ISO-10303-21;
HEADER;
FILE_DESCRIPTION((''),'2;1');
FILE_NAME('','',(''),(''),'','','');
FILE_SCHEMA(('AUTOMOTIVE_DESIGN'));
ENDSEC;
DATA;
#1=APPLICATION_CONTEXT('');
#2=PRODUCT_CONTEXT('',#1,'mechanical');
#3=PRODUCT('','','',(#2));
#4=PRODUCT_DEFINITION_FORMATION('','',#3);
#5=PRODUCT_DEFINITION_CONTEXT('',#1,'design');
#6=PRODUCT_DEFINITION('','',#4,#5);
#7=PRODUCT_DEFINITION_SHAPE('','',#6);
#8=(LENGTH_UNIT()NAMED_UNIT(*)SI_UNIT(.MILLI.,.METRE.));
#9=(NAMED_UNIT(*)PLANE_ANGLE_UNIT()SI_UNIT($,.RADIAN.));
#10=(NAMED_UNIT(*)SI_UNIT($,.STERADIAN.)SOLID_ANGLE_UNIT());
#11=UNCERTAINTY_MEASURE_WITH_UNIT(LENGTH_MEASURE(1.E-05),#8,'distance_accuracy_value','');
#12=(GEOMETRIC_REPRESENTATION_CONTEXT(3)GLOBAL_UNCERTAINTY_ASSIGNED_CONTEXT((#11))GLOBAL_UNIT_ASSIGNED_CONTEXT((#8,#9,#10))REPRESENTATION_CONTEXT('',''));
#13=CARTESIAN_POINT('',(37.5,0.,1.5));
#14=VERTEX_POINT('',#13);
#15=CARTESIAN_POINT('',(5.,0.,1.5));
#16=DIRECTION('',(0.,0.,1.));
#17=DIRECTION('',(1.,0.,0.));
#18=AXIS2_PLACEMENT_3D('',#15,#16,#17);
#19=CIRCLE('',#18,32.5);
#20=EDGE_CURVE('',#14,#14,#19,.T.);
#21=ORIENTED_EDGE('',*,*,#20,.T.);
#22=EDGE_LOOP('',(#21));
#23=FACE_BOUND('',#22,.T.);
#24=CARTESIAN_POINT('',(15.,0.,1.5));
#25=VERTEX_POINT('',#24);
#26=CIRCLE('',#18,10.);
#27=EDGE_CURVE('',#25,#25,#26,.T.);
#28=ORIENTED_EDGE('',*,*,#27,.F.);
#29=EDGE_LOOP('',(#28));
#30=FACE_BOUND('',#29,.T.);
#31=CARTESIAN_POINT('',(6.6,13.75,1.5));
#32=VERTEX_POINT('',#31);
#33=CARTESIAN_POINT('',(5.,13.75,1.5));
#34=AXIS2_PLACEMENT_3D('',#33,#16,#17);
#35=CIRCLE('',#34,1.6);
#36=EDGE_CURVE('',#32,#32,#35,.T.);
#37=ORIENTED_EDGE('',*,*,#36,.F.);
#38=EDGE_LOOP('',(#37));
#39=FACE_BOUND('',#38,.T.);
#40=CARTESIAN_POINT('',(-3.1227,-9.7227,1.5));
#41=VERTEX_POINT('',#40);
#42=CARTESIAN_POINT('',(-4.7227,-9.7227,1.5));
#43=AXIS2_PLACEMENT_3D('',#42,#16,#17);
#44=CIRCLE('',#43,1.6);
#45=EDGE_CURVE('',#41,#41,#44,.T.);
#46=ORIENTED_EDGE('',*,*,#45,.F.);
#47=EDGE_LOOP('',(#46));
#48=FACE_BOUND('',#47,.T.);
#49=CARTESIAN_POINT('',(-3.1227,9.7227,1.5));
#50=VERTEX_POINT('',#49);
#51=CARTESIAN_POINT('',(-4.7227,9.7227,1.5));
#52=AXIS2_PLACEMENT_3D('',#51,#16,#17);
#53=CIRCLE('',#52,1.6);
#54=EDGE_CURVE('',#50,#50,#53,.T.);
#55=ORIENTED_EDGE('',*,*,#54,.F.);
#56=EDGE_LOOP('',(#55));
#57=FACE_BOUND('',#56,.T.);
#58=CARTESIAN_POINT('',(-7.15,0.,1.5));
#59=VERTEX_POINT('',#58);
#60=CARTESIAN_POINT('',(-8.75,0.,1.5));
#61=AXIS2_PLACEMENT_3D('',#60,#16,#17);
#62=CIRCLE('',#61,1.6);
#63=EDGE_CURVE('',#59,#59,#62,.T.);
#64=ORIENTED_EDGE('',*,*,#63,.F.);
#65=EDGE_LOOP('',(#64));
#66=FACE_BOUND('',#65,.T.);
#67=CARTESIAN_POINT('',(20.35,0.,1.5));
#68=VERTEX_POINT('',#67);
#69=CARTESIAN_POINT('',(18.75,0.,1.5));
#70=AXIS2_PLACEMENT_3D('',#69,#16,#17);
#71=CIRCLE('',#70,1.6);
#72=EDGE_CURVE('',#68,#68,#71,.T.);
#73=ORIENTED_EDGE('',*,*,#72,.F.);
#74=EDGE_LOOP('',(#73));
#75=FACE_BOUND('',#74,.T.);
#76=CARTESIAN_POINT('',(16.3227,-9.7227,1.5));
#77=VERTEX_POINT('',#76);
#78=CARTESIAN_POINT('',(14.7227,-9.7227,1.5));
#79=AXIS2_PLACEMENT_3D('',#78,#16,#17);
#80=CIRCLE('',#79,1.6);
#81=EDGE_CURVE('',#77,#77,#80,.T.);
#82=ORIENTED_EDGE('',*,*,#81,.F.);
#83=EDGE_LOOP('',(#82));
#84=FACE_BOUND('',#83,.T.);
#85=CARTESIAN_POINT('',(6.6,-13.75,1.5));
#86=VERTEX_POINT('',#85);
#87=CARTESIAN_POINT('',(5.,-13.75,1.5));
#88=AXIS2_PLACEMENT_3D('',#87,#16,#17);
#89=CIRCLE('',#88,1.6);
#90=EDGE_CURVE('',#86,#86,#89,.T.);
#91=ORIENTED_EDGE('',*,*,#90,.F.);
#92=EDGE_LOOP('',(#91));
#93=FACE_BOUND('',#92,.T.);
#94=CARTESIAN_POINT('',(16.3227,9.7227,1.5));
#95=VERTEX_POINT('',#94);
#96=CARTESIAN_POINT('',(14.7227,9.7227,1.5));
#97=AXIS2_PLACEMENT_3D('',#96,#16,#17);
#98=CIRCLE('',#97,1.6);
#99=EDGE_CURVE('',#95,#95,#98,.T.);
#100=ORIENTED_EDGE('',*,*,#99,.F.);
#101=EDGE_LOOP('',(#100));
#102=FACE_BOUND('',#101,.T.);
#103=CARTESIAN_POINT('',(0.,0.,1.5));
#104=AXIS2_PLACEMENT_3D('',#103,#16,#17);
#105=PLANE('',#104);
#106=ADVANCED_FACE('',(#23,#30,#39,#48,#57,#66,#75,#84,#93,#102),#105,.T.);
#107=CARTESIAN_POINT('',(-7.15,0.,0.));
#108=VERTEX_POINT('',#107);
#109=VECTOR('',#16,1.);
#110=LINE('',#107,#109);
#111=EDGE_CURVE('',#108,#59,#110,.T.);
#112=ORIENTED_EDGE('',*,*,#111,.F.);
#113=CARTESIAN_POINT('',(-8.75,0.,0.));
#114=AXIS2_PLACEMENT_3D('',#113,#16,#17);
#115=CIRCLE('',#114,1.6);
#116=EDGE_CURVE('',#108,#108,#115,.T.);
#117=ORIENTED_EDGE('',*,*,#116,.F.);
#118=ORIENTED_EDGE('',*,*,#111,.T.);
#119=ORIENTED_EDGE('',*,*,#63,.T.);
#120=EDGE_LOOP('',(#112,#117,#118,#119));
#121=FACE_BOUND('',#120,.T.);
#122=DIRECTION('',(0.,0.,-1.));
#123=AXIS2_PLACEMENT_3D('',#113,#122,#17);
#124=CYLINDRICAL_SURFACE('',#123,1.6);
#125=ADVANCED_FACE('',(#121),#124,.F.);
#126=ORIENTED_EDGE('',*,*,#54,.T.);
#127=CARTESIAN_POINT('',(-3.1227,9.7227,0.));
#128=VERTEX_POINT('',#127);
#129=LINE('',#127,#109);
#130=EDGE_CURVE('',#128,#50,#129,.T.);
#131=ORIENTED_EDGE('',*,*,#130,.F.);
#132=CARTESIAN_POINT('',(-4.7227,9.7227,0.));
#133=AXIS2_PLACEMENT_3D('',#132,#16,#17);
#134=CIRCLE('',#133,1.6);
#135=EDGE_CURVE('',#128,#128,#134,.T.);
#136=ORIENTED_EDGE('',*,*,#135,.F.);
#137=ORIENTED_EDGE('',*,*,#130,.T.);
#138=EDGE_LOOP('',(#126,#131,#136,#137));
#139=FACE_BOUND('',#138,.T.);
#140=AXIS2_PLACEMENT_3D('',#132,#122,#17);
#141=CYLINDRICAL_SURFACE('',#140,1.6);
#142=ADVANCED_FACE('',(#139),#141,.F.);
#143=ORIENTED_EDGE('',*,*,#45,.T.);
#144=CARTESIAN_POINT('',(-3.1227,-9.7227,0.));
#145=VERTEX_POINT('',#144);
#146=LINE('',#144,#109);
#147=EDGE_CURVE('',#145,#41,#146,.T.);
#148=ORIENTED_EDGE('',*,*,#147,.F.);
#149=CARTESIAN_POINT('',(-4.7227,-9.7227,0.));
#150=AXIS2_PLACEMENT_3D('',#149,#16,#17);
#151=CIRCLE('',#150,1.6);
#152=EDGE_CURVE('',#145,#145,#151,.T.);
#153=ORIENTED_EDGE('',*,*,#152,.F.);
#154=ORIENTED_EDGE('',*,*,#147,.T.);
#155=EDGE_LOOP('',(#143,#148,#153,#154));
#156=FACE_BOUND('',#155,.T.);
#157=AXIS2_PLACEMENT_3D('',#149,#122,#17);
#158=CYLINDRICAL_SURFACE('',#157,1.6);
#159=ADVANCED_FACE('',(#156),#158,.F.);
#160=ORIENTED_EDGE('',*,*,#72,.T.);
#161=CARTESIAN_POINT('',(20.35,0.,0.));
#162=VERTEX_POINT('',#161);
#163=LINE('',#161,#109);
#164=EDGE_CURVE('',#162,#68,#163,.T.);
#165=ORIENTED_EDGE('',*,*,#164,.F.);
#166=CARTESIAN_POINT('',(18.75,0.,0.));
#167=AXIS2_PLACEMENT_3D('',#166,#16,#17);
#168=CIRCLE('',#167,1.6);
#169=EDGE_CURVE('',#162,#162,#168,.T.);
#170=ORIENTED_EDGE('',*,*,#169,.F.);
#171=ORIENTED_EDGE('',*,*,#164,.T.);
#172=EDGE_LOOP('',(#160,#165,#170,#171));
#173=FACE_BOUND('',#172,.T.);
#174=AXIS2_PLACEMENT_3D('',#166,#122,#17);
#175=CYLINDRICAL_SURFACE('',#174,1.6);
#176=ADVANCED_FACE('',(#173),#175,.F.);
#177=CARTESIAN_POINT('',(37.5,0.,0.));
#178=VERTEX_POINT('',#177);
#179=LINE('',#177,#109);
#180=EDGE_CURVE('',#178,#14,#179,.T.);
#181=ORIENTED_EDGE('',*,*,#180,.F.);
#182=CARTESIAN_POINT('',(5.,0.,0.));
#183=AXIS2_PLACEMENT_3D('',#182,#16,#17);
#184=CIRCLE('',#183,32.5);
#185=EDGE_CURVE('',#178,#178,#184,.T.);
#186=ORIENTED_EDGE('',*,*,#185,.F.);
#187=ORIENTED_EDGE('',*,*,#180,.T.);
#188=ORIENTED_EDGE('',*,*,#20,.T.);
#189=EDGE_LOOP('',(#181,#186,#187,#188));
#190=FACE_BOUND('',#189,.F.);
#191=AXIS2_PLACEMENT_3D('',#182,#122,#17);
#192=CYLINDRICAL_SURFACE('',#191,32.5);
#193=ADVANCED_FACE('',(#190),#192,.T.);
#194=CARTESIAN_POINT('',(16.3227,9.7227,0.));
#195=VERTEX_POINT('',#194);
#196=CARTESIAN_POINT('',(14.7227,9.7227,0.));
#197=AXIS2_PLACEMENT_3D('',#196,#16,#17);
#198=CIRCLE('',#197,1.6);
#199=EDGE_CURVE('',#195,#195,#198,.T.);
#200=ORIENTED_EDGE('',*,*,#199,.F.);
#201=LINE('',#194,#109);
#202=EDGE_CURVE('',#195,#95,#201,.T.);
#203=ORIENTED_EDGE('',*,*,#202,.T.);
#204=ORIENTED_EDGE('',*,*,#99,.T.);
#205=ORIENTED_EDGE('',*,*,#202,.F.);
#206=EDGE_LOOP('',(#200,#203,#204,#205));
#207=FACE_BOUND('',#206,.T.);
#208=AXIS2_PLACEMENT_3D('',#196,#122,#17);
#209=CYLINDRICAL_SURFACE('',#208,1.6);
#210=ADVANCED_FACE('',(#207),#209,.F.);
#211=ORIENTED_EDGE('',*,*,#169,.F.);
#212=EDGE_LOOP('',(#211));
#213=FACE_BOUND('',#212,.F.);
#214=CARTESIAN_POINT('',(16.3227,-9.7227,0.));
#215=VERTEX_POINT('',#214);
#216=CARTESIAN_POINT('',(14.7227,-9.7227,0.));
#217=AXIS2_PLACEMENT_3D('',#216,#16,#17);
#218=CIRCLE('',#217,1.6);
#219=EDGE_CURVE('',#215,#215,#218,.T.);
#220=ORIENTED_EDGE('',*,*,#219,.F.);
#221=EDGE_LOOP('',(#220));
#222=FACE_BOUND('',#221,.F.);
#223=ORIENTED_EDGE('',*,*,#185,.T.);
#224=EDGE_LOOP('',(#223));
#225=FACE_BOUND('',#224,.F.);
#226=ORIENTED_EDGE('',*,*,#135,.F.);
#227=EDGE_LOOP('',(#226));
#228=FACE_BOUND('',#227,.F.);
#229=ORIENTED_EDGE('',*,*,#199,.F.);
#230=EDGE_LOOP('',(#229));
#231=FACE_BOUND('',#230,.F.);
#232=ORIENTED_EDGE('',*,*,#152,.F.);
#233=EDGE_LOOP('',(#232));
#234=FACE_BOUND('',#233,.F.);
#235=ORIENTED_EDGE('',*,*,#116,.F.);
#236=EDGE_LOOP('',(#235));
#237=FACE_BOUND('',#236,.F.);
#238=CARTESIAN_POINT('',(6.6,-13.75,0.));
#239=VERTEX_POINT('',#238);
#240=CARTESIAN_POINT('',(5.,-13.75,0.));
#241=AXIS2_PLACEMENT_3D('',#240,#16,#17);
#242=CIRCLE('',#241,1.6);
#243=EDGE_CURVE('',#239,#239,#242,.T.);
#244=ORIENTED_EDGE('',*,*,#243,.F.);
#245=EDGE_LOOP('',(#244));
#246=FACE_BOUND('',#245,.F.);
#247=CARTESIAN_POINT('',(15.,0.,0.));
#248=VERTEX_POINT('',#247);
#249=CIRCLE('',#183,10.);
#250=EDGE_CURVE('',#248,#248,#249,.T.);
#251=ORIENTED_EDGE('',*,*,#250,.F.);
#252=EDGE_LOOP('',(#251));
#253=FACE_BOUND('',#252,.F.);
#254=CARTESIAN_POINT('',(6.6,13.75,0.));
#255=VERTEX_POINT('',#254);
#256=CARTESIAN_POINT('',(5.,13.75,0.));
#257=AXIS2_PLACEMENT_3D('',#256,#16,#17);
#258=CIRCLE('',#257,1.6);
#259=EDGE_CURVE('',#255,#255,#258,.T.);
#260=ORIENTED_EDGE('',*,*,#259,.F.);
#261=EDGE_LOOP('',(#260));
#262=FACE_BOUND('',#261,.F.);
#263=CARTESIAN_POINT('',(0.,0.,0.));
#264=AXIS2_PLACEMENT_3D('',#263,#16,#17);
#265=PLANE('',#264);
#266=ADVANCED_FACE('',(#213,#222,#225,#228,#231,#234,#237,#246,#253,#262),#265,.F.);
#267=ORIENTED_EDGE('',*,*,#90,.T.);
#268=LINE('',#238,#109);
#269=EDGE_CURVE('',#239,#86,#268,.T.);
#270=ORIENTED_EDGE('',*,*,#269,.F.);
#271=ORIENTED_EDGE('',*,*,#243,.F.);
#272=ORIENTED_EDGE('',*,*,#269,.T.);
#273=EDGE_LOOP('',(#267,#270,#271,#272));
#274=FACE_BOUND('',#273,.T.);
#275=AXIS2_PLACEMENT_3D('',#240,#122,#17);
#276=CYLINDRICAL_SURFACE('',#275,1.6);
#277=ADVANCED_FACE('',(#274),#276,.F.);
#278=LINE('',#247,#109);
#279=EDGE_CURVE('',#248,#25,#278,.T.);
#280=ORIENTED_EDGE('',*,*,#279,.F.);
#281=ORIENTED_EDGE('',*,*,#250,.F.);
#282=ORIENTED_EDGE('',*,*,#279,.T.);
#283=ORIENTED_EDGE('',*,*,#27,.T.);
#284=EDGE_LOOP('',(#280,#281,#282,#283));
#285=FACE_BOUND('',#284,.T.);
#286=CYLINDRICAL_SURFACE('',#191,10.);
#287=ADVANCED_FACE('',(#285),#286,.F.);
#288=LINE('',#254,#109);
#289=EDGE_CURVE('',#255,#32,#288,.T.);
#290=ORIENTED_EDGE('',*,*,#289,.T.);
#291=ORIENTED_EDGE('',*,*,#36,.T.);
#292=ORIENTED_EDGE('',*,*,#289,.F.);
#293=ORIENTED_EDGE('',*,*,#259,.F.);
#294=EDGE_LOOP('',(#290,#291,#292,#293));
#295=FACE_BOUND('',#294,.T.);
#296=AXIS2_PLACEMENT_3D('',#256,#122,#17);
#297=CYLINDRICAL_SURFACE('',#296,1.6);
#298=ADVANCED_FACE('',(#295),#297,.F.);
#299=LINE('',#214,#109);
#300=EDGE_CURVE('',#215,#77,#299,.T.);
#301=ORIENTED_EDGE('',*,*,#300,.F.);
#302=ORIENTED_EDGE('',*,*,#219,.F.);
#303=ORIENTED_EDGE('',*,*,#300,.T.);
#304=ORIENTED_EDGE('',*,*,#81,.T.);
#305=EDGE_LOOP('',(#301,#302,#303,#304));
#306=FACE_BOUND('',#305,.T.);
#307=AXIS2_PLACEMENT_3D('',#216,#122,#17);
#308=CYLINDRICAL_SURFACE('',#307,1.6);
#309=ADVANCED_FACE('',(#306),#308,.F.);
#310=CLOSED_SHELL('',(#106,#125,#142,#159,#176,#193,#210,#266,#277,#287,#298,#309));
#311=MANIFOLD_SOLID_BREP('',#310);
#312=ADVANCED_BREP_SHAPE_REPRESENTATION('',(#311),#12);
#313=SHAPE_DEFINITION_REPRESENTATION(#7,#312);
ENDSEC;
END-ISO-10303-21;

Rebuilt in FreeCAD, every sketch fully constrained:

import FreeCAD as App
import Part
import Sketcher

V = App.Vector

doc = App.newDocument("Part")
body = doc.addObject("PartDesign::Body", "Body")

# Sketch on XY plane
sketch1 = body.newObject("Sketcher::SketchObject", "Sketch")
sketch1.AttachmentSupport = (doc.getObject("XY_Plane"), [""])
sketch1.MapMode = "FlatFace"
sketch1.addGeometry([
    Part.Circle(V(5, 0, 0), V(0, 0, 1), 32.5),  # 0
    Part.Circle(V(-4.7, -9.7, 0), V(0, 0, 1), 1.6),  # 1
    Part.Circle(V(5, -13.8, 0), V(0, 0, 1), 1.6),  # 2
    Part.Circle(V(14.7, -9.7, 0), V(0, 0, 1), 1.6),  # 3
    Part.Circle(V(-8.8, 0, 0), V(0, 0, 1), 1.6),  # 4
    Part.Circle(V(-4.7, 9.7, 0), V(0, 0, 1), 1.6),  # 5
    Part.Circle(V(5, 0, 0), V(0, 0, 1), 10),  # 6
    Part.Circle(V(18.8, 0, 0), V(0, 0, 1), 1.6),  # 7
    Part.Circle(V(5, 13.8, 0), V(0, 0, 1), 1.6),  # 8
    Part.Circle(V(14.7, 9.7, 0), V(0, 0, 1), 1.6),  # 9
], False)
sketch1.addConstraint([
    Sketcher.Constraint("Coincident", 6, 3, 0, 3),
    Sketcher.Constraint("Equal", 1, 2),
    Sketcher.Constraint("Equal", 2, 3),
    Sketcher.Constraint("Equal", 3, 4),
    Sketcher.Constraint("Equal", 4, 5),
    Sketcher.Constraint("Equal", 5, 7),
    Sketcher.Constraint("Equal", 7, 8),
    Sketcher.Constraint("Equal", 8, 9),
    Sketcher.Constraint("Symmetric", 1, 3, 5, 3, -1),
    Sketcher.Constraint("Symmetric", 2, 3, 8, 3, -1),
    Sketcher.Constraint("Symmetric", 3, 3, 9, 3, -1),
    Sketcher.Constraint("PointOnObject", 0, 3, -1),
    Sketcher.Constraint("PointOnObject", 4, 3, -1),
    Sketcher.Constraint("PointOnObject", 7, 3, -1),
    Sketcher.Constraint("Horizontal", 1, 3, 3, 3),
    Sketcher.Constraint("Vertical", 0, 3, 2, 3),
    Sketcher.Constraint("Diameter", 0, 65.0),
    Sketcher.Constraint("Diameter", 6, 20.0),
    Sketcher.Constraint("Diameter", 1, 3.2),
    Sketcher.Constraint("DistanceX", -1, 1, 0, 3, 5.0),
    Sketcher.Constraint("DistanceY", 2, 3, -1, 1, 13.75),
    Sketcher.Constraint("DistanceX", 4, 3, -1, 1, 8.75),
    Sketcher.Constraint("DistanceX", -1, 1, 7, 3, 18.75),
    Sketcher.Constraint("DistanceX", 1, 3, -1, 1, 4.7227),
    Sketcher.Constraint("DistanceY", 1, 3, -1, 1, 9.7227),
    Sketcher.Constraint("DistanceX", -1, 1, 3, 3, 14.7227),
])
pad1 = body.newObject("PartDesign::Pad", "Pad")
pad1.Profile = sketch1
pad1.Length = 1.5

doc.recompute()
